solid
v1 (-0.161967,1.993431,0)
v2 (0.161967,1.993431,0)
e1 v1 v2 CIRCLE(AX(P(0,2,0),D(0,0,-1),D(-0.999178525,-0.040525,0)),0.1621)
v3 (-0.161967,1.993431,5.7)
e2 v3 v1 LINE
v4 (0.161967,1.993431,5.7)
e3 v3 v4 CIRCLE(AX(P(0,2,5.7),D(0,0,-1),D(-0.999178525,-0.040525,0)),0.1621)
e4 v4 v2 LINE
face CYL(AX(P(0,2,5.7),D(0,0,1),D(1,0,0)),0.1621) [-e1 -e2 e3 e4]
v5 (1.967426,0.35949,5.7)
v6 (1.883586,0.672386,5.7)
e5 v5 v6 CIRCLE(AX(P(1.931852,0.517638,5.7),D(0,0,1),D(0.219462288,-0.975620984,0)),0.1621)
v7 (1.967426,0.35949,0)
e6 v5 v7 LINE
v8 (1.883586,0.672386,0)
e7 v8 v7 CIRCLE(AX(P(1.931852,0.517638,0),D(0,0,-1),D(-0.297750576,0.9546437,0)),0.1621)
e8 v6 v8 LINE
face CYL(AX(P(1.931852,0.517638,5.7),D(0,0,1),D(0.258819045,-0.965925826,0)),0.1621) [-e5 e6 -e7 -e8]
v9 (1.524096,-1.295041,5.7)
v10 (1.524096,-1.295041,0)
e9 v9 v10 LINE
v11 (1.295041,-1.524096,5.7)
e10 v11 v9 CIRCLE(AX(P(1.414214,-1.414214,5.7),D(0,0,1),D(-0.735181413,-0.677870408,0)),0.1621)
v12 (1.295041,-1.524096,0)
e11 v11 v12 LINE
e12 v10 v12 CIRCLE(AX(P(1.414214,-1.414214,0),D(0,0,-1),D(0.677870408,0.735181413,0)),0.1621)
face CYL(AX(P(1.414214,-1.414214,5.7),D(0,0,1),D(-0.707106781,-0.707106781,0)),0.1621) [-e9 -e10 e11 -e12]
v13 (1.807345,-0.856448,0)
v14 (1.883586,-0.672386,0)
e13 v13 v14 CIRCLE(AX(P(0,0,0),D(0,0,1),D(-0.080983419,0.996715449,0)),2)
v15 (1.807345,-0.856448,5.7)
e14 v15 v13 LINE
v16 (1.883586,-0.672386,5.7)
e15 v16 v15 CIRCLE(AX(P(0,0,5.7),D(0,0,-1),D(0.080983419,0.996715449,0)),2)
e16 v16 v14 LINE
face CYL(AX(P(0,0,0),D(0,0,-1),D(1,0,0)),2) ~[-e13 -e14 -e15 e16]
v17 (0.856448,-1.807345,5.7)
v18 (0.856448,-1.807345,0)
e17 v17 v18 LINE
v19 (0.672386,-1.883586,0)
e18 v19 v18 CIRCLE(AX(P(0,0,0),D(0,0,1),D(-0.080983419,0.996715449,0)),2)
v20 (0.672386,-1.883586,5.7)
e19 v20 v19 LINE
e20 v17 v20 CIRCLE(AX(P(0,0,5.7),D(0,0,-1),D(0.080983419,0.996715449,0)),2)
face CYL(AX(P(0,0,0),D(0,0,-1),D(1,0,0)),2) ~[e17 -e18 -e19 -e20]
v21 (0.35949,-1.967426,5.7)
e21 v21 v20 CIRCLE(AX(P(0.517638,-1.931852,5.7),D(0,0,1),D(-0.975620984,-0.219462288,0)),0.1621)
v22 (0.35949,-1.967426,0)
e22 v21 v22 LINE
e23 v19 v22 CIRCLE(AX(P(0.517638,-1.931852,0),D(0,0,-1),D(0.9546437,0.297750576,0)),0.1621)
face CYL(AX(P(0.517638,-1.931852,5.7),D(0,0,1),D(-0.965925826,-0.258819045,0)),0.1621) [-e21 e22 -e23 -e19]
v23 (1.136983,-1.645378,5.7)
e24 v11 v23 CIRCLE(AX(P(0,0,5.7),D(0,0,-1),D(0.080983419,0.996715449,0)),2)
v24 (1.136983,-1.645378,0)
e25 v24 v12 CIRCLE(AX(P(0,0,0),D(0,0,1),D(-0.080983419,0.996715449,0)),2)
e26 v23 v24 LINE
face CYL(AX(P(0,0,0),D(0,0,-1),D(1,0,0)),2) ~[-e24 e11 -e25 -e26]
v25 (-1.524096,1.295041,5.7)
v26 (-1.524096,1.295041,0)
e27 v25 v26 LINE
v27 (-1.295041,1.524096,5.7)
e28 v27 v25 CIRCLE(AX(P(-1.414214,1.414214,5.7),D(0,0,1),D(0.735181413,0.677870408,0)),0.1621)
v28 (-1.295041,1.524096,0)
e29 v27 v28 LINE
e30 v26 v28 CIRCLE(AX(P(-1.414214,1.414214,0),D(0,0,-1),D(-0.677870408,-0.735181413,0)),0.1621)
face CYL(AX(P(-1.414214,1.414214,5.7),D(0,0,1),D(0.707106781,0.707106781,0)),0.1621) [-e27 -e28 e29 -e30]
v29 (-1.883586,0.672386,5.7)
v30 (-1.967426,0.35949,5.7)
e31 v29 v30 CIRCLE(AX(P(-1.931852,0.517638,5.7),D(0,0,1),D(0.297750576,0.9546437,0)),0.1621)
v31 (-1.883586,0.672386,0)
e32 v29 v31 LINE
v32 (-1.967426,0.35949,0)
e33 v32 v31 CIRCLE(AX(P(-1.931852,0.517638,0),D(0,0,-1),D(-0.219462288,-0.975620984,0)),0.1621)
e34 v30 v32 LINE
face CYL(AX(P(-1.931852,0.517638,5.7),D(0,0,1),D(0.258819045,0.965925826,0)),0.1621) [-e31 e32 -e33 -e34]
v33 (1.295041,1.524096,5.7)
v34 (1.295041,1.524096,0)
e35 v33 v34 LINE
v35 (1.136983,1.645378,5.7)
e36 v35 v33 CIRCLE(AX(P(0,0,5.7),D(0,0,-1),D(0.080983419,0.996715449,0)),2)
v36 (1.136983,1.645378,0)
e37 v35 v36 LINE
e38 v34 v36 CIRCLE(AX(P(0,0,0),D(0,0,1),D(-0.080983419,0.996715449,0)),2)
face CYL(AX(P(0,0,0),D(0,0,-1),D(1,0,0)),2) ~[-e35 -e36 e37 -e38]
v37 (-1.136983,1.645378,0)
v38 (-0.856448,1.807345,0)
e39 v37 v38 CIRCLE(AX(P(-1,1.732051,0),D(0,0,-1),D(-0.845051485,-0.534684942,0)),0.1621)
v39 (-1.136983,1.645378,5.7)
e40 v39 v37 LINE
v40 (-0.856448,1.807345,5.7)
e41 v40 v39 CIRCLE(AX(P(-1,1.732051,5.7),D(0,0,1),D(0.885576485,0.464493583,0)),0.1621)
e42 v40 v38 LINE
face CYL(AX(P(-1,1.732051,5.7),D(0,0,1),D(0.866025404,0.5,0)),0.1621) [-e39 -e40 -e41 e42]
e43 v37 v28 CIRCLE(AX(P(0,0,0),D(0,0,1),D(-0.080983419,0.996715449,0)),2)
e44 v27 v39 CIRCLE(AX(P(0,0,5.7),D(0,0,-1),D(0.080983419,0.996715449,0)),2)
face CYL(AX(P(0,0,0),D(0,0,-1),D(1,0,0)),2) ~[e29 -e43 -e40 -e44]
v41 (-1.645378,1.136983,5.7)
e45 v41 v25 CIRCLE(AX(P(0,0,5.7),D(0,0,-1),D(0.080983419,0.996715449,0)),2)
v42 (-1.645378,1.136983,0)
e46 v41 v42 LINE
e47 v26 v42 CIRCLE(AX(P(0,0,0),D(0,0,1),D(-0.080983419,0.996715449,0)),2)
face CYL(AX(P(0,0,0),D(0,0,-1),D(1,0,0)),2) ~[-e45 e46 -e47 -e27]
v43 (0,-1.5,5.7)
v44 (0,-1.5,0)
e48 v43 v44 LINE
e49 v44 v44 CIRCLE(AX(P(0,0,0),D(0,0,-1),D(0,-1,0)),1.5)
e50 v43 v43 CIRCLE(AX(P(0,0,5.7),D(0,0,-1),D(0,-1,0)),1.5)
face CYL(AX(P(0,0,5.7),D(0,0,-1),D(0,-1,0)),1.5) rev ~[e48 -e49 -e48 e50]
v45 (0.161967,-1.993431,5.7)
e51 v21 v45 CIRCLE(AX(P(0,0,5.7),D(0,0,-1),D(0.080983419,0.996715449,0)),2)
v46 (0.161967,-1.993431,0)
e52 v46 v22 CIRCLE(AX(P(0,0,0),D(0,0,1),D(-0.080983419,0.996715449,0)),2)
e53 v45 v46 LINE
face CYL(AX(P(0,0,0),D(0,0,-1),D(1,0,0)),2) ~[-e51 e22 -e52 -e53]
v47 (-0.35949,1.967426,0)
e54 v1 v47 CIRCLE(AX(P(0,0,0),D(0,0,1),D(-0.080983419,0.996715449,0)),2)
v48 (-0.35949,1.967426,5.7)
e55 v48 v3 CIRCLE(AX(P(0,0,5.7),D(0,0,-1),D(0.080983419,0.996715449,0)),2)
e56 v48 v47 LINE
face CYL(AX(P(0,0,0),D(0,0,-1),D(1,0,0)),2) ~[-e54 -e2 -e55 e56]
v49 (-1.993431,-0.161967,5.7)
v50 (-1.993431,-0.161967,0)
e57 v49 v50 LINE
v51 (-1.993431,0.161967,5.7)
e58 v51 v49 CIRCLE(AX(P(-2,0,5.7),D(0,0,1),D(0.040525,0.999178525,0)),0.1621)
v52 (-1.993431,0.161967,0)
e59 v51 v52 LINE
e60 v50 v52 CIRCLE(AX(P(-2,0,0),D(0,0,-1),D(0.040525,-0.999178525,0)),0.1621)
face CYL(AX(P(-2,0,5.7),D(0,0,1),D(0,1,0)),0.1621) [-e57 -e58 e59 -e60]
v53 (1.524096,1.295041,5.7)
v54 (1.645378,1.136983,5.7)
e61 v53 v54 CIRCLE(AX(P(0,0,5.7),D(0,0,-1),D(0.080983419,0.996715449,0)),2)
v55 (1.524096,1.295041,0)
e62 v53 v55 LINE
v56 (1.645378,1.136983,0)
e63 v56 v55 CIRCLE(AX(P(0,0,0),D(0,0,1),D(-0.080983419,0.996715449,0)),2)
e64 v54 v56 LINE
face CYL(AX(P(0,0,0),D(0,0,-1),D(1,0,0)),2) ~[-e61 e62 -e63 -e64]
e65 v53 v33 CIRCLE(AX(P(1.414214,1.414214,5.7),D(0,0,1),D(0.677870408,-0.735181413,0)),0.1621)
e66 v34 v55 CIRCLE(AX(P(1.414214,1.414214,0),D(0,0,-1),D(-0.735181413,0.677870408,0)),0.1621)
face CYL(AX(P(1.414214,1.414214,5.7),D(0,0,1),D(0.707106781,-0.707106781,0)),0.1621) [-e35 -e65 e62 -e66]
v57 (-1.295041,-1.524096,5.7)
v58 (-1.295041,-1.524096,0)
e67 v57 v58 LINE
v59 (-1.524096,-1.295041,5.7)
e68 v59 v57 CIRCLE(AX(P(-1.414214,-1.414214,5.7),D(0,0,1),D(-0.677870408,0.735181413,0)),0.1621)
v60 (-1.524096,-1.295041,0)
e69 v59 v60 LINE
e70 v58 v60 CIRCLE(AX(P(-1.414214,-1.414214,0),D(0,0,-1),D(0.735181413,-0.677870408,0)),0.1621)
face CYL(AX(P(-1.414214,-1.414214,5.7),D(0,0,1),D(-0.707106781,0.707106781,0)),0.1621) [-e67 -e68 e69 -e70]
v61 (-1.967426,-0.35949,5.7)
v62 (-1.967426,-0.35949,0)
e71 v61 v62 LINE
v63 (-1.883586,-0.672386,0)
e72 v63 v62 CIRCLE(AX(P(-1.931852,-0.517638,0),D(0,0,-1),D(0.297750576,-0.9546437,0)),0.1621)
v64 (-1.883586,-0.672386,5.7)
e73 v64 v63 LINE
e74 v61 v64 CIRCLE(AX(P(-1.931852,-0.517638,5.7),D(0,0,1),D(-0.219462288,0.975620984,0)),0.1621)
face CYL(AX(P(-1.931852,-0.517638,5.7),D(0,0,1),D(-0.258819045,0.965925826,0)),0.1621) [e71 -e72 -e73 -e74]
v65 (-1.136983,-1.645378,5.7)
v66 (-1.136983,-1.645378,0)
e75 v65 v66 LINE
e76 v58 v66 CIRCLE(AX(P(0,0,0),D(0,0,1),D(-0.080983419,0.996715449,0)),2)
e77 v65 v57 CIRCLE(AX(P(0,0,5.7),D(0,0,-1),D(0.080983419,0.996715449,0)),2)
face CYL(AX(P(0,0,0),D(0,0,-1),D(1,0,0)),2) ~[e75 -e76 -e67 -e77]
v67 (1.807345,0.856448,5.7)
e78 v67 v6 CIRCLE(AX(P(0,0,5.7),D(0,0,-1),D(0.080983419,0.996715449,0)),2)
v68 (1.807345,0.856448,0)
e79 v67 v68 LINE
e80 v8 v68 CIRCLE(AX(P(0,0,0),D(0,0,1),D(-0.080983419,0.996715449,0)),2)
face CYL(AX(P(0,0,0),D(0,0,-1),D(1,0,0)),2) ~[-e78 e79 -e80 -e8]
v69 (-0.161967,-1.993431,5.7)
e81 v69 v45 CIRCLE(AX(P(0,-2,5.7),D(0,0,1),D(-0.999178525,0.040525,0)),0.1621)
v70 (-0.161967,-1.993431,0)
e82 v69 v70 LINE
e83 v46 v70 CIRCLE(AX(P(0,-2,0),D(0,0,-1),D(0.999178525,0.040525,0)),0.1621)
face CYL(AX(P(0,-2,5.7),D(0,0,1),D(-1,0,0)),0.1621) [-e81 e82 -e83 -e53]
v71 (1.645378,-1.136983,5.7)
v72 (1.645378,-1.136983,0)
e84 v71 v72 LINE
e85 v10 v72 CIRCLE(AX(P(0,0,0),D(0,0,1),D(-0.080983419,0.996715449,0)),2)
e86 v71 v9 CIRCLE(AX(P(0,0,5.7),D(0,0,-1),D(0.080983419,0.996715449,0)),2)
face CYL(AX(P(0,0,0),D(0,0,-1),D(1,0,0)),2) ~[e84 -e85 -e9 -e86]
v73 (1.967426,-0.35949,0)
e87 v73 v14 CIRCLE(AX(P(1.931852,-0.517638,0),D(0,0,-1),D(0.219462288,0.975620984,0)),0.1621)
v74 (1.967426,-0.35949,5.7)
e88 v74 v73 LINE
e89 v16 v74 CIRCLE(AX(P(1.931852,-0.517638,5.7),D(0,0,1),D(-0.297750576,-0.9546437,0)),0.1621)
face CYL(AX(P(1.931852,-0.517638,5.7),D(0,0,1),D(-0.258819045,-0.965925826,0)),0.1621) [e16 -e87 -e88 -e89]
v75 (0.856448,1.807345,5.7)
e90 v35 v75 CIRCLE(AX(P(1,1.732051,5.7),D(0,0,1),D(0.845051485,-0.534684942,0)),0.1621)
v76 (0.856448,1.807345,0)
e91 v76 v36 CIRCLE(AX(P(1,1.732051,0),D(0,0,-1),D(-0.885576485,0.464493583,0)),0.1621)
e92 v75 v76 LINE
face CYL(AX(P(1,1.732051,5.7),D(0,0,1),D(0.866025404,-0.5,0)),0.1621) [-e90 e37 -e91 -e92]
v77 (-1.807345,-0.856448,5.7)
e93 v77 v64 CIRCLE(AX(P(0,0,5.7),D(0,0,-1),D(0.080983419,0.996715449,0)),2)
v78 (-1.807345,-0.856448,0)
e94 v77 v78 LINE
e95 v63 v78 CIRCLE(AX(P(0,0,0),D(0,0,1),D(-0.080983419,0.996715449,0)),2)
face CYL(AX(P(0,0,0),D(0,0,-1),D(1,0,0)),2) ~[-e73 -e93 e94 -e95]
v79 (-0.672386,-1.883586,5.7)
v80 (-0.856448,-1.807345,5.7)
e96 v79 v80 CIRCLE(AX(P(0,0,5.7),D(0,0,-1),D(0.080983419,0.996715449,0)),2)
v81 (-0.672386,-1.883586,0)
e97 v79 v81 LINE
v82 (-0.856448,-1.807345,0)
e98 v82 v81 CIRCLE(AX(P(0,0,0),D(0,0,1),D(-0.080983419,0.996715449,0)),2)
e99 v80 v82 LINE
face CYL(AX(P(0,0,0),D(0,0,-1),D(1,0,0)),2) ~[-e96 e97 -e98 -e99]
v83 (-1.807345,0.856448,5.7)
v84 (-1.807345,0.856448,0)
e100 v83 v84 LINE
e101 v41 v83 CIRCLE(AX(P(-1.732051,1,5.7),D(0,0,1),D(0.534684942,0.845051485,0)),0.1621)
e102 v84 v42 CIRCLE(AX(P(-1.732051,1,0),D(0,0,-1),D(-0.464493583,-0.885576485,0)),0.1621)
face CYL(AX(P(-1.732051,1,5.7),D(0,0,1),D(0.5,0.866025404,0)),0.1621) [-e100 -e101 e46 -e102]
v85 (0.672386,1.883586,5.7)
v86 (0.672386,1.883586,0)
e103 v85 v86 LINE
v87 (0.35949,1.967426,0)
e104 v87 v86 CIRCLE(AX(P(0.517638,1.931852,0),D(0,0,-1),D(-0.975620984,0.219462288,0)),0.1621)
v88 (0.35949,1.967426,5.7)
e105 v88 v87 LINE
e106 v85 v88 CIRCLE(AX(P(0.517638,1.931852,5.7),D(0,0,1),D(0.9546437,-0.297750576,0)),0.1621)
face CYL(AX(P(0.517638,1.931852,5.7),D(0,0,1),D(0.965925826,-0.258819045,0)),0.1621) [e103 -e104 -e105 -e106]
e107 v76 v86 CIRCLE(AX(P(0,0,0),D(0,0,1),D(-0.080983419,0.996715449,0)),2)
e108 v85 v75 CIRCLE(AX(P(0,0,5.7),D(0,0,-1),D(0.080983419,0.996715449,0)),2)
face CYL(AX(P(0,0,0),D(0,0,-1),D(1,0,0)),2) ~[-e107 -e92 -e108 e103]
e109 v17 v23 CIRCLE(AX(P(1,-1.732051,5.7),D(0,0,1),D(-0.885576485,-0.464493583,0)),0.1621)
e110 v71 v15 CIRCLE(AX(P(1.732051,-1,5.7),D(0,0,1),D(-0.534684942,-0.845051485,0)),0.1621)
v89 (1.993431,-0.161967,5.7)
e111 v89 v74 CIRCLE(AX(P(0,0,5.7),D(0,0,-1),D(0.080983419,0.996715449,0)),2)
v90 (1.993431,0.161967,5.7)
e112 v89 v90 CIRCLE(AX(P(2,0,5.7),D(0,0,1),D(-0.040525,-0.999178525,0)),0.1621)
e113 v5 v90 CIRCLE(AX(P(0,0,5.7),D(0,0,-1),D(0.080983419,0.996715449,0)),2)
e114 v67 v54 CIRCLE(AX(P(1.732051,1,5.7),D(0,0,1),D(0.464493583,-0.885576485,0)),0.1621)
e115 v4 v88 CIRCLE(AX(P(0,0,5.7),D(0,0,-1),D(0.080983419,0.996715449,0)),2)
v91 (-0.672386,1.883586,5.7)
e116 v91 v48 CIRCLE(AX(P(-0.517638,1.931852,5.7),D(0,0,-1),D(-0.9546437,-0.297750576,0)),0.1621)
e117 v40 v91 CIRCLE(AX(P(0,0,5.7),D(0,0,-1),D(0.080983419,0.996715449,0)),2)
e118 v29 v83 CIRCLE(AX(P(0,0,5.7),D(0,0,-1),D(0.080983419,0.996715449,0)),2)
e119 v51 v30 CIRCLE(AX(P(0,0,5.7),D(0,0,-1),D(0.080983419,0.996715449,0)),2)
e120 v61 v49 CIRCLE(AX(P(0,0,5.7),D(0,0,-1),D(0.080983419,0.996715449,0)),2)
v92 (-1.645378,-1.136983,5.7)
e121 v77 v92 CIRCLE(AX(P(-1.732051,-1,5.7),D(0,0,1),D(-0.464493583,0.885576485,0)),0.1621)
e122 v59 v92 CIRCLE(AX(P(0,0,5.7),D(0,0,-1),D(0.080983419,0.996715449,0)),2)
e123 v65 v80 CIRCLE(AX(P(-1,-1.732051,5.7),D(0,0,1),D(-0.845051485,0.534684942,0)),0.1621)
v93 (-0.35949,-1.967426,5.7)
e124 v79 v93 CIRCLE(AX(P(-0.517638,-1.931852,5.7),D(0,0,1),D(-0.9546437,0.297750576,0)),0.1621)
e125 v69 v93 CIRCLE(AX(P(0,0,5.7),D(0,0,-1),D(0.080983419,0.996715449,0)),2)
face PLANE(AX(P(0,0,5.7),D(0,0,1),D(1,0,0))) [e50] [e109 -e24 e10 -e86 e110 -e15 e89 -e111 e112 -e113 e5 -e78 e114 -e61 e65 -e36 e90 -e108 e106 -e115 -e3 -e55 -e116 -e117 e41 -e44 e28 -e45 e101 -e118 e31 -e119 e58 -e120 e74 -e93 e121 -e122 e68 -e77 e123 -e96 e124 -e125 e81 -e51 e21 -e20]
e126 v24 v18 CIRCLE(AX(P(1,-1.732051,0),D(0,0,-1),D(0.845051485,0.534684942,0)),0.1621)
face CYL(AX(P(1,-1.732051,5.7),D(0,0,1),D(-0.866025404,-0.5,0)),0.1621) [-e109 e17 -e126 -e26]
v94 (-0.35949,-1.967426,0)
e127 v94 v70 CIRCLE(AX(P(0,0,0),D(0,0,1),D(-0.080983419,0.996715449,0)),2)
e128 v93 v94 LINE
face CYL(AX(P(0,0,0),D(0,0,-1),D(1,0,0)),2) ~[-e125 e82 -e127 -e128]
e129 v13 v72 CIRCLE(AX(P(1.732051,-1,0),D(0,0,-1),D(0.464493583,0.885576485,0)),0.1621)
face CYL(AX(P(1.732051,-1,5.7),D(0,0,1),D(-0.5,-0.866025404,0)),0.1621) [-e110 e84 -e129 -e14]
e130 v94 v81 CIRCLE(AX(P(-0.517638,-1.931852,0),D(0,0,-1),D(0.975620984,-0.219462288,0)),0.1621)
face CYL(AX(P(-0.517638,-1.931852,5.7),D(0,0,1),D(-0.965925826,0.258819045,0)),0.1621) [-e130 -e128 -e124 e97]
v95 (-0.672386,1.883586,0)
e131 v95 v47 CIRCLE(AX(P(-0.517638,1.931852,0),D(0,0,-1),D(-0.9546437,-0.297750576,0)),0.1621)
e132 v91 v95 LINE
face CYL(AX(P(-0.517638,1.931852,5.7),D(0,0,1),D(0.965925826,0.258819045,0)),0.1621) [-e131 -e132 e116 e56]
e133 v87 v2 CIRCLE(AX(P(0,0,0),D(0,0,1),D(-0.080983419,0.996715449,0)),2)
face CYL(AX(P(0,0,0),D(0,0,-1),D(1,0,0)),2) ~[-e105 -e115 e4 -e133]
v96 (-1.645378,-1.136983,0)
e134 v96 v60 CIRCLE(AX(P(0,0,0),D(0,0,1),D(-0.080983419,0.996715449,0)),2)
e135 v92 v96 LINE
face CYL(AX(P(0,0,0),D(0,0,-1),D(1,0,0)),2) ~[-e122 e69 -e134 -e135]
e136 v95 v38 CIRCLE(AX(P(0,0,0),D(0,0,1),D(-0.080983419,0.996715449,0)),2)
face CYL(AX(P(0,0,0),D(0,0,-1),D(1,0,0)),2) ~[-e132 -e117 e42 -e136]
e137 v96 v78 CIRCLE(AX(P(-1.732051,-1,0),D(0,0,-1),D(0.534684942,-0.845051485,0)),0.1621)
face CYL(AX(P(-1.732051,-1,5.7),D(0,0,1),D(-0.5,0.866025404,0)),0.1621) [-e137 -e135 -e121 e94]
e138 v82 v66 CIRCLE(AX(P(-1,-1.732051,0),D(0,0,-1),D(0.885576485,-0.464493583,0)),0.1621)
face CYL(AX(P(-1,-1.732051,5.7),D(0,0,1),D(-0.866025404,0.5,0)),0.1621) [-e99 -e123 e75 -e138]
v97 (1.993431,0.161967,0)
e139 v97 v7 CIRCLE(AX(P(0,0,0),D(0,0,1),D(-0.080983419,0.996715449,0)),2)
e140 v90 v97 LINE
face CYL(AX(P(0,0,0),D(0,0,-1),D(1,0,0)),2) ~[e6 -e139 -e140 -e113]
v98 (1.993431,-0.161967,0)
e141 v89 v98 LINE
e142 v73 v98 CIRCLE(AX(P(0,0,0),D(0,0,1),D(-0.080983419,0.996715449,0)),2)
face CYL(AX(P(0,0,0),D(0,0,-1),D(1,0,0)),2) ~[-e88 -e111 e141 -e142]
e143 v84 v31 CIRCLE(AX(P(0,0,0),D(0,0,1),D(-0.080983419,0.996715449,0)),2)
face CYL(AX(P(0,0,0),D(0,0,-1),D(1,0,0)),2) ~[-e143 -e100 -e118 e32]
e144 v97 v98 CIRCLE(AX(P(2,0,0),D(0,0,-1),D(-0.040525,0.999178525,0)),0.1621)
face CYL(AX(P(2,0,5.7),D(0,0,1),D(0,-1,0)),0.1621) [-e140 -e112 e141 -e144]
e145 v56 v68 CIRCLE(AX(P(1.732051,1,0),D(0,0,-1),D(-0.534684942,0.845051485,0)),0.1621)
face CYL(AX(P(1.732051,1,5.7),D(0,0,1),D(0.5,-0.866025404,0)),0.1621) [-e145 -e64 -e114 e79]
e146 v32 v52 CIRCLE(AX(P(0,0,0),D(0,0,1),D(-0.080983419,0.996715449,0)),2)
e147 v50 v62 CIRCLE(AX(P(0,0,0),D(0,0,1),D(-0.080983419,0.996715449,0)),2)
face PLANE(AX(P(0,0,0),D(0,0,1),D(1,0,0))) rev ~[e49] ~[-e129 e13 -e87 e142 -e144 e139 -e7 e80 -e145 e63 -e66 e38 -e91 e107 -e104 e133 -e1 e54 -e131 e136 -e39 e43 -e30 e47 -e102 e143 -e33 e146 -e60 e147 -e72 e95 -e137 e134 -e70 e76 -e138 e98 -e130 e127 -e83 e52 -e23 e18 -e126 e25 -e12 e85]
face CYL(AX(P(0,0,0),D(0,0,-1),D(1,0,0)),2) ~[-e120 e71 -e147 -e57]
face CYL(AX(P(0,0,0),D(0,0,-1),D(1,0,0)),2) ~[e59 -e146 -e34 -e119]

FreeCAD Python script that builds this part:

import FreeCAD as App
import Part
import Sketcher

doc = App.newDocument("Part")
body = doc.addObject("PartDesign::Body", "Body")

# Sketch on XY plane
sketch1 = body.newObject("Sketcher::SketchObject", "Sketch")
sketch1.AttachmentSupport = (doc.getObject("XY_Plane"), [""])
sketch1.MapMode = "FlatFace"
sketch1.addGeometry(Part.Circle(App.Vector(0, 0, 0), App.Vector(0, 0, 1), 2), False)
sketch1.addConstraint([
    Sketcher.Constraint("Coincident", 0, 3, -1, 1),
    Sketcher.Constraint("Diameter", 0, 4.0),
])
pad1 = body.newObject("PartDesign::Pad", "Pad")
pad1.Profile = sketch1
pad1.Length = 5.7

# Sketch on XY plane
sketch2 = body.newObject("Sketcher::SketchObject", "Sketch001")
sketch2.AttachmentSupport = (doc.getObject("XY_Plane"), [""])
sketch2.MapMode = "FlatFace"
sketch2.AttachmentOffset = App.Placement(App.Vector(0, 0, 5.7), App.Rotation())
sketch2.addGeometry(Part.Circle(App.Vector(0, 2, 0), App.Vector(0, 0, 1), 0.16), False)
sketch2.addConstraint([
    Sketcher.Constraint("PointOnObject", 0, 3, -2),
    Sketcher.Constraint("DistanceY", -1, 1, 0, 3, 2.0),
    Sketcher.Constraint("Diameter", 0, 0.3242),
])
pad2 = body.newObject("PartDesign::Pad", "Pad001")
pad2.Profile = sketch2
pad2.Length = 5.7
pad2.Reversed = True
doc.recompute()

polarpattern = body.newObject("PartDesign::PolarPattern", "PolarPattern")
polarpattern.Originals = [pad2]
polarpattern.Axis = (doc.getObject("Z_Axis"), [""])
polarpattern.Angle = 360
polarpattern.Occurrences = 24
body.Tip = polarpattern

# Sketch on XY plane
sketch3 = body.newObject("Sketcher::SketchObject", "Sketch002")
sketch3.AttachmentSupport = (doc.getObject("XY_Plane"), [""])
sketch3.MapMode = "FlatFace"
sketch3.AttachmentOffset = App.Placement(App.Vector(0, 0, 5.7), App.Rotation())
sketch3.addGeometry(Part.Circle(App.Vector(0, 0, 0), App.Vector(0, 0, 1), 1.5), False)
sketch3.addConstraint([
    Sketcher.Constraint("Coincident", 0, 3, -1, 1),
    Sketcher.Constraint("Diameter", 0, 3.0),
])
doc.recompute()
hole = body.newObject("PartDesign::Hole", "Hole")
hole.Profile = sketch3
hole.ThreadType = "None"
hole.Diameter = 3
hole.DepthType = "ThroughAll"

doc.recompute()
